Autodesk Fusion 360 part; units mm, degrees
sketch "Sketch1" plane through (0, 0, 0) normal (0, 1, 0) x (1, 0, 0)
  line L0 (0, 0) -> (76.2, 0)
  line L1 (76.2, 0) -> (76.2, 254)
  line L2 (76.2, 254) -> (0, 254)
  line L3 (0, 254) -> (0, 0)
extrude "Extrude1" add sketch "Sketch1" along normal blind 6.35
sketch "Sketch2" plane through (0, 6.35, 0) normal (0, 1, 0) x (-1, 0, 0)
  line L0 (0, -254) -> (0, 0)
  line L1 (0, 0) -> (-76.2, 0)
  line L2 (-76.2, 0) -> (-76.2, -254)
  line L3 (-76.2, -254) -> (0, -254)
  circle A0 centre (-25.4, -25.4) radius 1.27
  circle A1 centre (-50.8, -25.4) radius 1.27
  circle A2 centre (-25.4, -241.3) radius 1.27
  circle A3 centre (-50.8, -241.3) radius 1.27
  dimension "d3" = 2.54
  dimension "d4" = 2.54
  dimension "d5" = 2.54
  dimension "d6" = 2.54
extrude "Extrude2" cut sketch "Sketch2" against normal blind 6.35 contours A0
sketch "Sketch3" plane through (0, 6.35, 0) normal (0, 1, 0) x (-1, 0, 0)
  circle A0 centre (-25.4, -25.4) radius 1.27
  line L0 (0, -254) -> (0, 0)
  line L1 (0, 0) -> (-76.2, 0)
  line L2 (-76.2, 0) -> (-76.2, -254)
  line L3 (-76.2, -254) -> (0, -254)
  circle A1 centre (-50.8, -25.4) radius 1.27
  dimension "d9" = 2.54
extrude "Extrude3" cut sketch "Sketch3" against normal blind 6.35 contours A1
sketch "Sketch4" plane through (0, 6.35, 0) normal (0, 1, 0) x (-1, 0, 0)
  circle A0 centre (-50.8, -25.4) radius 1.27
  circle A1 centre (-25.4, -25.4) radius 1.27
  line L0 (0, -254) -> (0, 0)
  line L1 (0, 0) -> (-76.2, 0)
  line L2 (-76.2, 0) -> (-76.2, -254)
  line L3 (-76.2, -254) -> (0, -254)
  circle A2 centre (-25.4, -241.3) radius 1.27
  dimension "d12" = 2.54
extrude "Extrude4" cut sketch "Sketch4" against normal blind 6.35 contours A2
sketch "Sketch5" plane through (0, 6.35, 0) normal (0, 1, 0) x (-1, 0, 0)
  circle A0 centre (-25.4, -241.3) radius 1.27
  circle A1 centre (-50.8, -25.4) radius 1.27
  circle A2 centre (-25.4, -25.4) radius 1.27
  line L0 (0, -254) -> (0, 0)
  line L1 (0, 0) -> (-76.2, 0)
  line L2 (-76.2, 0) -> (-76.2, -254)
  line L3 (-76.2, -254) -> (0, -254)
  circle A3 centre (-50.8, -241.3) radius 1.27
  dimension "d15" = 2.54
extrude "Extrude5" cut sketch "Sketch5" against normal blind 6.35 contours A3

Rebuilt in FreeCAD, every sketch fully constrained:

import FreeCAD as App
import Part
import Sketcher
from FreeCAD import Vector
Q = App.Units.Quantity

doc = App.newDocument("Part")
body = doc.addObject("PartDesign::Body", "Body")

sketch1 = body.newObject("Sketcher::SketchObject", "Sketch")
sketch1.AttachmentSupport = (doc.getObject("XZ_Plane"), [""])
sketch1.MapMode = "FlatFace"
sketch1.addGeometry(Part.LineSegment(Vector(0, -254, 0), Vector(0, 0, 0)), False)
sketch1.addGeometry(Part.LineSegment(Vector(0, 0, 0), Vector(76, 0, 0)), False)
sketch1.addGeometry(Part.LineSegment(Vector(76, 0, 0), Vector(76, -254, 0)), False)
sketch1.addGeometry(Part.LineSegment(Vector(76, -254, 0), Vector(0, -254, 0)), False)
sketch1.addConstraint(Sketcher.Constraint("Coincident", 0, 2, 1, 1))
sketch1.addConstraint(Sketcher.Constraint("Coincident", 1, 2, 2, 1))
sketch1.addConstraint(Sketcher.Constraint("Coincident", 2, 2, 3, 1))
sketch1.addConstraint(Sketcher.Constraint("Coincident", 3, 2, 0, 1))
sketch1.addConstraint(Sketcher.Constraint("Vertical", 0))
sketch1.addConstraint(Sketcher.Constraint("Horizontal", 1))
sketch1.addConstraint(Sketcher.Constraint("Vertical", 2))
sketch1.addConstraint(Sketcher.Constraint("Horizontal", 3))
sketch1.addConstraint(Sketcher.Constraint("Coincident", 0, 2, -1, 1))
sketch1.addConstraint(Sketcher.Constraint("DistanceX", 1, 1, 1, 2, Q("3 in")))
sketch1.addConstraint(Sketcher.Constraint("DistanceY", 0, 1, 0, 2, Q("10 in")))
pad1 = body.newObject("PartDesign::Pad", "Pad")
pad1.Profile = sketch1
pad1.Length = Q("0.25 in")
pad1.Reversed = True

sketch2 = body.newObject("Sketcher::SketchObject", "Sketch001")
sketch2.AttachmentSupport = (doc.getObject("XZ_Plane"), [""])
sketch2.MapMode = "FlatFace"
sketch2.AttachmentOffset = App.Placement(Vector(0, 0, -0.25 * 25.4), App.Rotation())
sketch2.addGeometry(Part.Circle(Vector(25.4, -25.4, 0), Vector(0, 0, 1), 1.3), False)
sketch2.addConstraint(Sketcher.Constraint("Diameter", 0, Q("0.1 in")))
sketch2.addConstraint(Sketcher.Constraint("DistanceX", -1, 1, 0, 3, Q("1 in")))
sketch2.addConstraint(Sketcher.Constraint("DistanceY", 0, 3, -1, 1, Q("1 in")))
pocket1 = body.newObject("PartDesign::Pocket", "Pocket")
pocket1.Profile = sketch2
pocket1.Length = Q("0.25 in")
pocket1.Reversed = True

sketch3 = body.newObject("Sketcher::SketchObject", "Sketch002")
sketch3.AttachmentSupport = (doc.getObject("XZ_Plane"), [""])
sketch3.MapMode = "FlatFace"
sketch3.AttachmentOffset = App.Placement(Vector(0, 0, -0.25 * 25.4), App.Rotation())
sketch3.addGeometry(Part.Circle(Vector(50.8, -25.4, 0), Vector(0, 0, 1), 1.3), False)
sketch3.addConstraint(Sketcher.Constraint("Diameter", 0, Q("0.1 in")))
sketch3.addConstraint(Sketcher.Constraint("DistanceX", -1, 1, 0, 3, Q("2 in")))
sketch3.addConstraint(Sketcher.Constraint("DistanceY", 0, 3, -1, 1, Q("1 in")))
pocket2 = body.newObject("PartDesign::Pocket", "Pocket001")
pocket2.Profile = sketch3
pocket2.Length = Q("0.25 in")
pocket2.Reversed = True

sketch4 = body.newObject("Sketcher::SketchObject", "Sketch003")
sketch4.AttachmentSupport = (doc.getObject("XZ_Plane"), [""])
sketch4.MapMode = "FlatFace"
sketch4.AttachmentOffset = App.Placement(Vector(0, 0, -0.25 * 25.4), App.Rotation())
sketch4.addGeometry(Part.Circle(Vector(25.4, -241.3, 0), Vector(0, 0, 1), 1.3), False)
sketch4.addConstraint(Sketcher.Constraint("Diameter", 0, Q("0.1 in")))
sketch4.addConstraint(Sketcher.Constraint("DistanceX", -1, 1, 0, 3, Q("1 in")))
sketch4.addConstraint(Sketcher.Constraint("DistanceY", 0, 3, -1, 1, Q("9.5 in")))
pocket3 = body.newObject("PartDesign::Pocket", "Pocket002")
pocket3.Profile = sketch4
pocket3.Length = Q("0.25 in")
pocket3.Reversed = True

sketch5 = body.newObject("Sketcher::SketchObject", "Sketch004")
sketch5.AttachmentSupport = (doc.getObject("XZ_Plane"), [""])
sketch5.MapMode = "FlatFace"
sketch5.AttachmentOffset = App.Placement(Vector(0, 0, -0.25 * 25.4), App.Rotation())
sketch5.addGeometry(Part.Circle(Vector(50.8, -241.3, 0), Vector(0, 0, 1), 1.3), False)
sketch5.addConstraint(Sketcher.Constraint("Diameter", 0, Q("0.1 in")))
sketch5.addConstraint(Sketcher.Constraint("DistanceX", -1, 1, 0, 3, Q("2 in")))
sketch5.addConstraint(Sketcher.Constraint("DistanceY", 0, 3, -1, 1, Q("9.5 in")))
pocket4 = body.newObject("PartDesign::Pocket", "Pocket003")
pocket4.Profile = sketch5
pocket4.Length = Q("0.25 in")
pocket4.Reversed = True

doc.recompute()
